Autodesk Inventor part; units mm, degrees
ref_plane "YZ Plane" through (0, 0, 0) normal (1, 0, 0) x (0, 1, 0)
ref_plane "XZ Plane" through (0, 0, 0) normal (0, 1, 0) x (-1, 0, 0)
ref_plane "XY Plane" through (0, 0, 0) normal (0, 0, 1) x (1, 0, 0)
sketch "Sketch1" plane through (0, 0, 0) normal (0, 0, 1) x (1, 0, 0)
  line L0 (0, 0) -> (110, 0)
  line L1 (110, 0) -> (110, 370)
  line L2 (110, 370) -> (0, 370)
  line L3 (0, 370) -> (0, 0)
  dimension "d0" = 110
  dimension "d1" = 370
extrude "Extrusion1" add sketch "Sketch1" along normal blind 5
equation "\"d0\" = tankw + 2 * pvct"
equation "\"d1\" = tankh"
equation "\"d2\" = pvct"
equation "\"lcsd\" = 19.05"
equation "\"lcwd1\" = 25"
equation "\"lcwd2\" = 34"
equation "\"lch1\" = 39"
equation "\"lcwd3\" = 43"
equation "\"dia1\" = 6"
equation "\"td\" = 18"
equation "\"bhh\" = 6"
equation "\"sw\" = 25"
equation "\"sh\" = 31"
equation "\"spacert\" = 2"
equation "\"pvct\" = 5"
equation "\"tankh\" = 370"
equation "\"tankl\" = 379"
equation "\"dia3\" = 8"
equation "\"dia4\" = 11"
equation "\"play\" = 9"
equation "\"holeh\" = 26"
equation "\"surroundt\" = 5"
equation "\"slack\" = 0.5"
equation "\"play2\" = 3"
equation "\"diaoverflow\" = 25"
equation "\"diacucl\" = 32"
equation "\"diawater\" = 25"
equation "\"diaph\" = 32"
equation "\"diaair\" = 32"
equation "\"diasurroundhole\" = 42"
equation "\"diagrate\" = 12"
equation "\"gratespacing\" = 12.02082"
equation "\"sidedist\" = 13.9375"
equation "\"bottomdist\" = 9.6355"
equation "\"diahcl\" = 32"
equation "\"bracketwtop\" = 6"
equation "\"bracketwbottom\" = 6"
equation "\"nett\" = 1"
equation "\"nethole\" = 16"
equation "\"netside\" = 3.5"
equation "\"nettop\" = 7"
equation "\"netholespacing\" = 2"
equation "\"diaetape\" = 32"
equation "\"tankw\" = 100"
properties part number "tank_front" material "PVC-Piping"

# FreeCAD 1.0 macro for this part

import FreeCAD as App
import Part
import Sketcher


def add_polygon(sketch, points):
    """Adds a closed chain of lines whose ends are joined by coincident constraints."""
    first, n = sketch.GeometryCount, len(points)
    for a, b in zip(points, points[1:] + points[:1]):
        sketch.addGeometry(Part.LineSegment(App.Vector(*a, 0), App.Vector(*b, 0)), False)
    for i in range(n):
        sketch.addConstraint(Sketcher.Constraint("Coincident", first + i, 2, first + (i + 1) % n, 1))

doc = App.newDocument("Part")
body = doc.addObject("PartDesign::Body", "Body")

# Sketch on XY plane
sketch1 = body.newObject("Sketcher::SketchObject", "Sketch")
sketch1.AttachmentSupport = (doc.getObject("XY_Plane"), [""])
sketch1.MapMode = "FlatFace"
add_polygon(sketch1, [(0, 370), (0, 0), (110, 0), (110, 370)])  # lines 0-3
sketch1.addConstraint(Sketcher.Constraint("Vertical", 0))
sketch1.addConstraint(Sketcher.Constraint("Horizontal", 1))
sketch1.addConstraint(Sketcher.Constraint("Vertical", 2))
sketch1.addConstraint(Sketcher.Constraint("Horizontal", 3))
sketch1.addConstraint(Sketcher.Constraint("Coincident", 0, 2, -1, 1))
sketch1.addConstraint(Sketcher.Constraint("DistanceX", 1, 1, 1, 2, 110.0))
sketch1.addConstraint(Sketcher.Constraint("DistanceY", 0, 2, 0, 1, 370.0))
pad1 = body.newObject("PartDesign::Pad", "Pad")
pad1.Profile = sketch1
pad1.Length = 5

doc.recompute()
